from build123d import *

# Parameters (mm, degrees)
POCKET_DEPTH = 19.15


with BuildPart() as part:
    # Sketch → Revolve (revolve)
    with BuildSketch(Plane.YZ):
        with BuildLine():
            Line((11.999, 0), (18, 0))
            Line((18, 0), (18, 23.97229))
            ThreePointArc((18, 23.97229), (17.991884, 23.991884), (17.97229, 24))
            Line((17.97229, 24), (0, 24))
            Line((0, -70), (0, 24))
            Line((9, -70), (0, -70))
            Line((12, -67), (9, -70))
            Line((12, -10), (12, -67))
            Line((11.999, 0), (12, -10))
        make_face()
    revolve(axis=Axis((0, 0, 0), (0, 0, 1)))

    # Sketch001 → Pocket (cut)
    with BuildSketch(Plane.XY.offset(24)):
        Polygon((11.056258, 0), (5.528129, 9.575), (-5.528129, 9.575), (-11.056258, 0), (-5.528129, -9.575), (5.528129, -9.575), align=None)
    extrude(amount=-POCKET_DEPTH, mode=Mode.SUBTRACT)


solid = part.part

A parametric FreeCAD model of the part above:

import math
import FreeCAD as App
import Part
import Sketcher
Q = App.Units.Quantity


def add_polygon(sketch, points):
    """Adds a closed chain of lines whose ends are joined by coincident constraints."""
    first, n = sketch.GeometryCount, len(points)
    for a, b in zip(points, points[1:] + points[:1]):
        sketch.addGeometry(Part.LineSegment(App.Vector(*a, 0), App.Vector(*b, 0)), False)
    for i in range(n):
        sketch.addConstraint(Sketcher.Constraint("Coincident", first + i, 2, first + (i + 1) % n, 1))

doc = App.newDocument("Part")
params = doc.addObject("Spreadsheet::Sheet", "Params")
for row, (alias, value) in enumerate([
    ("sketch1_width", "9 mm"),
    ("sketch1_height", "94 mm"),
    ("sketch1_height2", "57 mm"),
    ("sketch1_length", "10 mm"),
    ("revolution_angle", "360 deg"),
    ("pocket1_length", "19.15 mm"),
], start=1):
    params.set(f"A{row}", alias)
    params.set(f"B{row}", "=" + value)
    params.setAlias(f"B{row}", alias)

body = doc.addObject("PartDesign::Body", "Body")

sketch1 = doc.addObject("Sketcher::SketchObject", "Sketch")
body.addObject(sketch1)
sketch1.AttachmentSupport = (doc.YZ_Plane, [""])
sketch1.MapMode = "FlatFace"
sketch1.addGeometry(Part.LineSegment(App.Vector(11.999, 0, 0), App.Vector(18, 0, 0)), False)
sketch1.addGeometry(Part.LineSegment(App.Vector(18, 0, 0), App.Vector(18, 23.972, 0)), False)
sketch1.addGeometry(Part.ArcOfCircle(Part.Circle(App.Vector(17.972, 23.972, 0), App.Vector(0, 0, 1), 0.028), math.radians(0), math.radians(90)), False)
sketch1.addGeometry(Part.LineSegment(App.Vector(17.972, 24, 0), App.Vector(0, 24, 0)), False)
sketch1.addGeometry(Part.LineSegment(App.Vector(0, 24, 0), App.Vector(0, -70, 0)), False)
sketch1.addGeometry(Part.LineSegment(App.Vector(0, -70, 0), App.Vector(9, -70, 0)), False)
sketch1.addGeometry(Part.LineSegment(App.Vector(9, -70, 0), App.Vector(12, -67, 0)), False)
sketch1.addGeometry(Part.LineSegment(App.Vector(12, -67, 0), App.Vector(12, -10, 0)), False)
sketch1.addGeometry(Part.LineSegment(App.Vector(12, -10, 0), App.Vector(11.999, 0, 0)), False)
sketch1.addConstraint(Sketcher.Constraint("Coincident", 0, 2, 1, 1))
sketch1.addConstraint(Sketcher.Constraint("Coincident", 1, 2, 2, 1))
sketch1.addConstraint(Sketcher.Constraint("Coincident", 2, 2, 3, 1))
sketch1.addConstraint(Sketcher.Constraint("Coincident", 3, 2, 4, 1))
sketch1.addConstraint(Sketcher.Constraint("Coincident", 4, 2, 5, 1))
sketch1.addConstraint(Sketcher.Constraint("Coincident", 5, 2, 6, 1))
sketch1.addConstraint(Sketcher.Constraint("Coincident", 6, 2, 7, 1))
sketch1.addConstraint(Sketcher.Constraint("Coincident", 7, 2, 8, 1))
sketch1.addConstraint(Sketcher.Constraint("Coincident", 8, 2, 0, 1))
sketch1.addConstraint(Sketcher.Constraint("Horizontal", 0))
sketch1.addConstraint(Sketcher.Constraint("Vertical", 1))
sketch1.addConstraint(Sketcher.Constraint("Horizontal", 3))
sketch1.addConstraint(Sketcher.Constraint("Vertical", 4))
sketch1.addConstraint(Sketcher.Constraint("Horizontal", 5))
sketch1.addConstraint(Sketcher.Constraint("Vertical", 7))
sketch1.addConstraint(Sketcher.Constraint("PointOnObject", 0, 2, -1))
sketch1.addConstraint(Sketcher.Constraint("PointOnObject", 3, 2, -2))
sketch1.addConstraint(Sketcher.Constraint("Horizontal", 2, 3, 1, 2))
sketch1.addConstraint(Sketcher.Constraint("DistanceX", 5, 1, 5, 2, Q("9 mm")))
sketch1.addConstraint(Sketcher.Constraint("DistanceY", 4, 2, 4, 1, Q("94 mm")))
sketch1.addConstraint(Sketcher.Constraint("DistanceY", 7, 1, 7, 2, Q("57 mm")))
sketch1.addConstraint(Sketcher.Constraint("Angle", 6, Q("45 deg")))
sketch1.addConstraint(Sketcher.Constraint("Distance", 8, Q("10 mm")))
sketch1.addConstraint(Sketcher.Constraint("DistanceX", -1, 1, 0, 2, Q("18 mm")))
sketch1.addConstraint(Sketcher.Constraint("DistanceY", -1, 1, 2, 2, Q("24 mm")))
sketch1.addConstraint(Sketcher.Constraint("DistanceX", 0, 1, 0, 2, Q("6.001 mm")))
sketch1.addConstraint(Sketcher.Constraint("Radius", 2, Q("0.02771 mm")))
sketch1.addConstraint(Sketcher.Constraint("DistanceX", 3, 2, 3, 1, Q("17.97229 mm")))
sketch1.setExpression("Constraints[18]", "Params.sketch1_width")
sketch1.setExpression("Constraints[19]", "Params.sketch1_height")
sketch1.setExpression("Constraints[20]", "Params.sketch1_height2")
sketch1.setExpression("Constraints[22]", "Params.sketch1_length")
revolution = doc.addObject("PartDesign::Revolution", "Revolution")
body.addObject(revolution)
revolution.Profile = sketch1
revolution.ReferenceAxis = (sketch1, ["V_Axis"])
revolution.setExpression("Angle", "Params.revolution_angle")

sketch2 = doc.addObject("Sketcher::SketchObject", "Sketch001")
body.addObject(sketch2)
sketch2.AttachmentSupport = (doc.XY_Plane, [""])
sketch2.MapMode = "FlatFace"
sketch2.AttachmentOffset = App.Placement(App.Vector(0, 0, 24), App.Rotation())
add_polygon(sketch2, [(11, 0), (6, 10), (-6, 10), (-11, 0), (-6, -10), (6, -10)])
sketch2.addConstraint(Sketcher.Constraint("Horizontal", 1))
sketch2.addConstraint(Sketcher.Constraint("Horizontal", 4))
sketch2.addConstraint(Sketcher.Constraint("Symmetric", 0, 2, 3, 2, -1, 1))
sketch2.addConstraint(Sketcher.Constraint("Symmetric", 2, 2, 5, 2, -1, 1))
sketch2.addConstraint(Sketcher.Constraint("PointOnObject", 2, 2, -1))
sketch2.addConstraint(Sketcher.Constraint("Parallel", 2, 5))
sketch2.addConstraint(Sketcher.Constraint("Vertical", 1, 2, 3, 2))
sketch2.addConstraint(Sketcher.Constraint("Angle", 0, Q("120.000001 deg")))
sketch2.addConstraint(Sketcher.Constraint("DistanceY", 3, 2, 1, 2, Q("19.15 mm")))
sketch2.addConstraint(Sketcher.Constraint("DistanceX", 1, 2, 1, 1, Q("11.056258 mm")))
pocket1 = doc.addObject("PartDesign::Pocket", "Pocket")
body.addObject(pocket1)
pocket1.Profile = sketch2
pocket1.setExpression("Length", "Params.pocket1_length")

doc.recompute()
